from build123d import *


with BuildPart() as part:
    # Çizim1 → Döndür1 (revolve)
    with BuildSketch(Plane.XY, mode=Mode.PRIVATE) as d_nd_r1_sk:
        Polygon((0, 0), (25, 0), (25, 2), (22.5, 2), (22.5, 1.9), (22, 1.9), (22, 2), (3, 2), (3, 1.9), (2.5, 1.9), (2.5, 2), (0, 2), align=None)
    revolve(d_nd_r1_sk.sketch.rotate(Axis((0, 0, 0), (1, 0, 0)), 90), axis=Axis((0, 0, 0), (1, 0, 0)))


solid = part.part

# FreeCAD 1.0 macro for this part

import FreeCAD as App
import Part
import Sketcher
from FreeCAD import Vector
Q = App.Units.Quantity

doc = App.newDocument("Part")
body = doc.addObject("PartDesign::Body", "Body")

# Sketch on XY plane
sketch1 = body.newObject("Sketcher::SketchObject", "Sketch")
sketch1.AttachmentSupport = (doc.getObject("XY_Plane"), [""])
sketch1.MapMode = "FlatFace"
sketch1.addGeometry(Part.LineSegment(Vector(0, 0, 0), Vector(25, 0, 0)), False)
sketch1.addGeometry(Part.LineSegment(Vector(25, 0, 0), Vector(25, 2, 0)), False)
sketch1.addGeometry(Part.LineSegment(Vector(25, 2, 0), Vector(22.5, 2, 0)), False)
sketch1.addGeometry(Part.LineSegment(Vector(22.5, 2, 0), Vector(22.5, 1.9, 0)), False)
sketch1.addGeometry(Part.LineSegment(Vector(22.5, 1.9, 0), Vector(22, 1.9, 0)), False)
sketch1.addGeometry(Part.LineSegment(Vector(22, 1.9, 0), Vector(22, 2, 0)), False)
sketch1.addGeometry(Part.LineSegment(Vector(22, 2, 0), Vector(3, 2, 0)), False)
sketch1.addGeometry(Part.LineSegment(Vector(3, 2, 0), Vector(3, 1.9, 0)), False)
sketch1.addGeometry(Part.LineSegment(Vector(3, 1.9, 0), Vector(2.5, 1.9, 0)), False)
sketch1.addGeometry(Part.LineSegment(Vector(2.5, 1.9, 0), Vector(2.5, 2, 0)), False)
sketch1.addGeometry(Part.LineSegment(Vector(2.5, 2, 0), Vector(0, 2, 0)), False)
sketch1.addGeometry(Part.LineSegment(Vector(0, 2, 0), Vector(0, 0, 0)), False)
sketch1.addConstraint(Sketcher.Constraint("Coincident", 0, 2, 1, 1))
sketch1.addConstraint(Sketcher.Constraint("Coincident", 1, 2, 2, 1))
sketch1.addConstraint(Sketcher.Constraint("Coincident", 2, 2, 3, 1))
sketch1.addConstraint(Sketcher.Constraint("Coincident", 3, 2, 4, 1))
sketch1.addConstraint(Sketcher.Constraint("Coincident", 4, 2, 5, 1))
sketch1.addConstraint(Sketcher.Constraint("Coincident", 5, 2, 6, 1))
sketch1.addConstraint(Sketcher.Constraint("Coincident", 6, 2, 7, 1))
sketch1.addConstraint(Sketcher.Constraint("Coincident", 7, 2, 8, 1))
sketch1.addConstraint(Sketcher.Constraint("Coincident", 8, 2, 9, 1))
sketch1.addConstraint(Sketcher.Constraint("Coincident", 9, 2, 10, 1))
sketch1.addConstraint(Sketcher.Constraint("Coincident", 10, 2, 11, 1))
sketch1.addConstraint(Sketcher.Constraint("Coincident", 11, 2, 0, 1))
sketch1.addConstraint(Sketcher.Constraint("Horizontal", 0))
sketch1.addConstraint(Sketcher.Constraint("Vertical", 1))
sketch1.addConstraint(Sketcher.Constraint("Horizontal", 2))
sketch1.addConstraint(Sketcher.Constraint("Vertical", 3))
sketch1.addConstraint(Sketcher.Constraint("Horizontal", 4))
sketch1.addConstraint(Sketcher.Constraint("Vertical", 5))
sketch1.addConstraint(Sketcher.Constraint("Horizontal", 6))
sketch1.addConstraint(Sketcher.Constraint("Vertical", 7))
sketch1.addConstraint(Sketcher.Constraint("Horizontal", 8))
sketch1.addConstraint(Sketcher.Constraint("Vertical", 9))
sketch1.addConstraint(Sketcher.Constraint("Horizontal", 10))
sketch1.addConstraint(Sketcher.Constraint("Vertical", 11))
sketch1.addConstraint(Sketcher.Constraint("Coincident", 11, 2, -1, 1))
sketch1.addConstraint(Sketcher.Constraint("Horizontal", 2, 2, 5, 2))
sketch1.addConstraint(Sketcher.Constraint("Horizontal", 4, 2, 7, 2))
sketch1.addConstraint(Sketcher.Constraint("Horizontal", 6, 2, 9, 2))
sketch1.addConstraint(Sketcher.Constraint("Equal", 4, 8))
sketch1.addConstraint(Sketcher.Constraint("Equal", 2, 10))
sketch1.addConstraint(Sketcher.Constraint("DistanceX", 0, 1, 0, 2, Q("25 mm")))
sketch1.addConstraint(Sketcher.Constraint("DistanceX", 6, 2, 6, 1, Q("19 mm")))
sketch1.addConstraint(Sketcher.Constraint("DistanceY", 1, 1, 1, 2, Q("2 mm")))
sketch1.addConstraint(Sketcher.Constraint("DistanceX", 2, 2, 2, 1, Q("2.5 mm")))
sketch1.addConstraint(Sketcher.Constraint("DistanceY", 3, 2, 3, 1, Q("0.1 mm")))
revolution = body.newObject("PartDesign::Revolution", "Revolution")
revolution.Profile = sketch1
revolution.ReferenceAxis = (sketch1, ["H_Axis"])
revolution.Angle = 360

doc.recompute()
